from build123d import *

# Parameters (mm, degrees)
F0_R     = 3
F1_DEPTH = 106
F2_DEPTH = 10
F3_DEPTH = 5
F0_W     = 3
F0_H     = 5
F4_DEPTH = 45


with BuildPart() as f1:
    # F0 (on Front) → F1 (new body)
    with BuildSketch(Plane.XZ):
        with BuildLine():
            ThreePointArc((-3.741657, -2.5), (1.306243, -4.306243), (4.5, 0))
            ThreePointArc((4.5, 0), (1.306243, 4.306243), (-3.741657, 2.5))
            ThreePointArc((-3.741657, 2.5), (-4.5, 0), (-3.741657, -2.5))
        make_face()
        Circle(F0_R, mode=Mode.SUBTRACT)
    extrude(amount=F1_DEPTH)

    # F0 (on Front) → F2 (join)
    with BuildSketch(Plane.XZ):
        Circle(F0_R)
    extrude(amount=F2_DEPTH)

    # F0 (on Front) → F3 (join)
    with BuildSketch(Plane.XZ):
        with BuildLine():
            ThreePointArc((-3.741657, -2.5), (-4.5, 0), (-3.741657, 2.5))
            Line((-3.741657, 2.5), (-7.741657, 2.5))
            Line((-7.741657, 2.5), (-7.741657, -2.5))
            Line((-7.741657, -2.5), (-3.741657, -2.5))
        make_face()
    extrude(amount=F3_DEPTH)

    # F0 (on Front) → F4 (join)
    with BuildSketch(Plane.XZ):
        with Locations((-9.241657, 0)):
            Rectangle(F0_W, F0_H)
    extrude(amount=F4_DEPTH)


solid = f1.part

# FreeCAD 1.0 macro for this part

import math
import FreeCAD as App
import Part
import Sketcher
Q = App.Units.Quantity

doc = App.newDocument("Part")
params = doc.addObject("Spreadsheet::Sheet", "Params")
for row, (alias, value) in enumerate([
    ("sketch1_diameter", "6 mm"),
    ("sketch1_radius", "4.5 mm"),
    ("pad1_length", "106 mm"),
    ("sketch2_diameter", "6 mm"),
    ("pad2_length", "10 mm"),
    ("sketch3_radius", "4.499998 mm"),
    ("sketch3_width", "4 mm"),
    ("sketch3_height", "5 mm"),
    ("pad3_length", "5 mm"),
    ("sketch4_width", "3 mm"),
    ("sketch4_height", "5 mm"),
    ("pad4_length", "45 mm"),
], start=1):
    params.set(f"A{row}", alias)
    params.set(f"B{row}", "=" + value)
    params.setAlias(f"B{row}", alias)

body = doc.addObject("PartDesign::Body", "Body")

sketch1 = doc.addObject("Sketcher::SketchObject", "Sketch")
body.addObject(sketch1)
sketch1.AttachmentSupport = (doc.XZ_Plane, [""])
sketch1.MapMode = "FlatFace"
sketch1.addGeometry([
    Part.ArcOfCircle(Part.Circle(App.Vector(0, 0, 0), App.Vector(0, 0, 1), 4.5), math.radians(-146.251011), math.radians(0.000001)),
    Part.ArcOfCircle(Part.Circle(App.Vector(0, 0, 0), App.Vector(0, 0, 1), 4.5), math.radians(-0.000001), math.radians(146.251011)),
    Part.ArcOfCircle(Part.Circle(App.Vector(-0.000002, 0, 0), App.Vector(0, 0, 1), 4.499998), math.radians(146.250995), math.radians(213.749005)),
    Part.Circle(App.Vector(0, 0, 0), App.Vector(0, 0, 1), 3),
], False)
sketch1.addConstraint([
    Sketcher.Constraint("Tangent", 0, 2, 1, 1),
    Sketcher.Constraint("Tangent", 1, 2, 2, 1),
    Sketcher.Constraint("Tangent", 2, 2, 0, 1),
    Sketcher.Constraint("Coincident", 0, 3, -1, 1),
    Sketcher.Constraint("Coincident", 3, 3, -1, 1),
    Sketcher.Constraint("PointOnObject", 0, 2, -1),
    Sketcher.Constraint("Vertical", 1, 2, 2, 2),
    Sketcher.Constraint("Diameter", 3, Q("6 mm")),
    Sketcher.Constraint("Radius", 0, Q("4.5 mm")),
    Sketcher.Constraint("DistanceY", 2, 2, 1, 2, Q("5 mm")),
])
sketch1.setExpression("Constraints[7]", "Params.sketch1_diameter")
sketch1.setExpression("Constraints[8]", "Params.sketch1_radius")
pad1 = doc.addObject("PartDesign::Pad", "Pad")
body.addObject(pad1)
pad1.Profile = sketch1
pad1.setExpression("Length", "Params.pad1_length")

sketch2 = doc.addObject("Sketcher::SketchObject", "Sketch001")
body.addObject(sketch2)
sketch2.AttachmentSupport = (doc.XZ_Plane, [""])
sketch2.MapMode = "FlatFace"
sketch2.addGeometry(Part.Circle(App.Vector(0, 0, 0), App.Vector(0, 0, 1), 3), False)
sketch2.addConstraint([
    Sketcher.Constraint("Coincident", 0, 3, -1, 1),
    Sketcher.Constraint("Diameter", 0, Q("6 mm")),
])
sketch2.setExpression("Constraints[1]", "Params.sketch2_diameter")
pad2 = doc.addObject("PartDesign::Pad", "Pad001")
body.addObject(pad2)
pad2.Profile = sketch2
pad2.setExpression("Length", "Params.pad2_length")

sketch3 = doc.addObject("Sketcher::SketchObject", "Sketch002")
body.addObject(sketch3)
sketch3.AttachmentSupport = (doc.XZ_Plane, [""])
sketch3.MapMode = "FlatFace"
sketch3.addGeometry([
    Part.ArcOfCircle(Part.Circle(App.Vector(-0.000002, 0, 0), App.Vector(0, 0, 1), 4.499998), math.radians(146.250995), math.radians(213.749005)),
    Part.LineSegment(App.Vector(-3.741657, 2.5, 0), App.Vector(-7.741657, 2.5, 0)),
    Part.LineSegment(App.Vector(-7.741657, 2.5, 0), App.Vector(-7.741657, -2.5, 0)),
    Part.LineSegment(App.Vector(-7.741657, -2.5, 0), App.Vector(-3.741657, -2.5, 0)),
], False)
sketch3.addConstraint([
    Sketcher.Constraint("Coincident", 0, 1, 1, 1),
    Sketcher.Constraint("Coincident", 1, 2, 2, 1),
    Sketcher.Constraint("Coincident", 2, 2, 3, 1),
    Sketcher.Constraint("Coincident", 3, 2, 0, 2),
    Sketcher.Constraint("Horizontal", 1),
    Sketcher.Constraint("Vertical", 2),
    Sketcher.Constraint("Horizontal", 3),
    Sketcher.Constraint("Coincident", 0, 3, -1, 1),
    Sketcher.Constraint("Vertical", 0, 1, 3, 2),
    Sketcher.Constraint("Radius", 0, Q("4.499998 mm")),
    Sketcher.Constraint("DistanceX", 1, 2, 1, 1, Q("4 mm")),
    Sketcher.Constraint("DistanceY", 2, 2, 2, 1, Q("5 mm")),
])
sketch3.setExpression("Constraints[9]", "Params.sketch3_radius")
sketch3.setExpression("Constraints[10]", "Params.sketch3_width")
sketch3.setExpression("Constraints[11]", "Params.sketch3_height")
pad3 = doc.addObject("PartDesign::Pad", "Pad002")
body.addObject(pad3)
pad3.Profile = sketch3
pad3.setExpression("Length", "Params.pad3_length")

sketch4 = doc.addObject("Sketcher::SketchObject", "Sketch003")
body.addObject(sketch4)
sketch4.AttachmentSupport = (doc.XZ_Plane, [""])
sketch4.MapMode = "FlatFace"
sketch4.addGeometry([
    Part.LineSegment(App.Vector(-10.741657, 2.5, 0), App.Vector(-10.741657, -2.5, 0)),
    Part.LineSegment(App.Vector(-10.741657, -2.5, 0), App.Vector(-7.741657, -2.5, 0)),
    Part.LineSegment(App.Vector(-7.741657, -2.5, 0), App.Vector(-7.741657, 2.5, 0)),
    Part.LineSegment(App.Vector(-7.741657, 2.5, 0), App.Vector(-10.741657, 2.5, 0)),
], False)
sketch4.addConstraint([
    Sketcher.Constraint("Coincident", 0, 2, 1, 1),
    Sketcher.Constraint("Coincident", 1, 2, 2, 1),
    Sketcher.Constraint("Coincident", 2, 2, 3, 1),
    Sketcher.Constraint("Coincident", 3, 2, 0, 1),
    Sketcher.Constraint("Vertical", 0),
    Sketcher.Constraint("Horizontal", 1),
    Sketcher.Constraint("Vertical", 2),
    Sketcher.Constraint("Horizontal", 3),
    Sketcher.Constraint("DistanceX", 1, 1, 1, 2, Q("3 mm")),
    Sketcher.Constraint("DistanceY", 0, 2, 0, 1, Q("5 mm")),
    Sketcher.Constraint("DistanceY", 0, 2, -1, 1, Q("2.5 mm")),
    Sketcher.Constraint("DistanceX", 0, 2, -1, 1, Q("10.741657 mm")),
])
sketch4.setExpression("Constraints[8]", "Params.sketch4_width")
sketch4.setExpression("Constraints[9]", "Params.sketch4_height")
pad4 = doc.addObject("PartDesign::Pad", "Pad003")
body.addObject(pad4)
pad4.Profile = sketch4
pad4.setExpression("Length", "Params.pad4_length")

doc.recompute()
